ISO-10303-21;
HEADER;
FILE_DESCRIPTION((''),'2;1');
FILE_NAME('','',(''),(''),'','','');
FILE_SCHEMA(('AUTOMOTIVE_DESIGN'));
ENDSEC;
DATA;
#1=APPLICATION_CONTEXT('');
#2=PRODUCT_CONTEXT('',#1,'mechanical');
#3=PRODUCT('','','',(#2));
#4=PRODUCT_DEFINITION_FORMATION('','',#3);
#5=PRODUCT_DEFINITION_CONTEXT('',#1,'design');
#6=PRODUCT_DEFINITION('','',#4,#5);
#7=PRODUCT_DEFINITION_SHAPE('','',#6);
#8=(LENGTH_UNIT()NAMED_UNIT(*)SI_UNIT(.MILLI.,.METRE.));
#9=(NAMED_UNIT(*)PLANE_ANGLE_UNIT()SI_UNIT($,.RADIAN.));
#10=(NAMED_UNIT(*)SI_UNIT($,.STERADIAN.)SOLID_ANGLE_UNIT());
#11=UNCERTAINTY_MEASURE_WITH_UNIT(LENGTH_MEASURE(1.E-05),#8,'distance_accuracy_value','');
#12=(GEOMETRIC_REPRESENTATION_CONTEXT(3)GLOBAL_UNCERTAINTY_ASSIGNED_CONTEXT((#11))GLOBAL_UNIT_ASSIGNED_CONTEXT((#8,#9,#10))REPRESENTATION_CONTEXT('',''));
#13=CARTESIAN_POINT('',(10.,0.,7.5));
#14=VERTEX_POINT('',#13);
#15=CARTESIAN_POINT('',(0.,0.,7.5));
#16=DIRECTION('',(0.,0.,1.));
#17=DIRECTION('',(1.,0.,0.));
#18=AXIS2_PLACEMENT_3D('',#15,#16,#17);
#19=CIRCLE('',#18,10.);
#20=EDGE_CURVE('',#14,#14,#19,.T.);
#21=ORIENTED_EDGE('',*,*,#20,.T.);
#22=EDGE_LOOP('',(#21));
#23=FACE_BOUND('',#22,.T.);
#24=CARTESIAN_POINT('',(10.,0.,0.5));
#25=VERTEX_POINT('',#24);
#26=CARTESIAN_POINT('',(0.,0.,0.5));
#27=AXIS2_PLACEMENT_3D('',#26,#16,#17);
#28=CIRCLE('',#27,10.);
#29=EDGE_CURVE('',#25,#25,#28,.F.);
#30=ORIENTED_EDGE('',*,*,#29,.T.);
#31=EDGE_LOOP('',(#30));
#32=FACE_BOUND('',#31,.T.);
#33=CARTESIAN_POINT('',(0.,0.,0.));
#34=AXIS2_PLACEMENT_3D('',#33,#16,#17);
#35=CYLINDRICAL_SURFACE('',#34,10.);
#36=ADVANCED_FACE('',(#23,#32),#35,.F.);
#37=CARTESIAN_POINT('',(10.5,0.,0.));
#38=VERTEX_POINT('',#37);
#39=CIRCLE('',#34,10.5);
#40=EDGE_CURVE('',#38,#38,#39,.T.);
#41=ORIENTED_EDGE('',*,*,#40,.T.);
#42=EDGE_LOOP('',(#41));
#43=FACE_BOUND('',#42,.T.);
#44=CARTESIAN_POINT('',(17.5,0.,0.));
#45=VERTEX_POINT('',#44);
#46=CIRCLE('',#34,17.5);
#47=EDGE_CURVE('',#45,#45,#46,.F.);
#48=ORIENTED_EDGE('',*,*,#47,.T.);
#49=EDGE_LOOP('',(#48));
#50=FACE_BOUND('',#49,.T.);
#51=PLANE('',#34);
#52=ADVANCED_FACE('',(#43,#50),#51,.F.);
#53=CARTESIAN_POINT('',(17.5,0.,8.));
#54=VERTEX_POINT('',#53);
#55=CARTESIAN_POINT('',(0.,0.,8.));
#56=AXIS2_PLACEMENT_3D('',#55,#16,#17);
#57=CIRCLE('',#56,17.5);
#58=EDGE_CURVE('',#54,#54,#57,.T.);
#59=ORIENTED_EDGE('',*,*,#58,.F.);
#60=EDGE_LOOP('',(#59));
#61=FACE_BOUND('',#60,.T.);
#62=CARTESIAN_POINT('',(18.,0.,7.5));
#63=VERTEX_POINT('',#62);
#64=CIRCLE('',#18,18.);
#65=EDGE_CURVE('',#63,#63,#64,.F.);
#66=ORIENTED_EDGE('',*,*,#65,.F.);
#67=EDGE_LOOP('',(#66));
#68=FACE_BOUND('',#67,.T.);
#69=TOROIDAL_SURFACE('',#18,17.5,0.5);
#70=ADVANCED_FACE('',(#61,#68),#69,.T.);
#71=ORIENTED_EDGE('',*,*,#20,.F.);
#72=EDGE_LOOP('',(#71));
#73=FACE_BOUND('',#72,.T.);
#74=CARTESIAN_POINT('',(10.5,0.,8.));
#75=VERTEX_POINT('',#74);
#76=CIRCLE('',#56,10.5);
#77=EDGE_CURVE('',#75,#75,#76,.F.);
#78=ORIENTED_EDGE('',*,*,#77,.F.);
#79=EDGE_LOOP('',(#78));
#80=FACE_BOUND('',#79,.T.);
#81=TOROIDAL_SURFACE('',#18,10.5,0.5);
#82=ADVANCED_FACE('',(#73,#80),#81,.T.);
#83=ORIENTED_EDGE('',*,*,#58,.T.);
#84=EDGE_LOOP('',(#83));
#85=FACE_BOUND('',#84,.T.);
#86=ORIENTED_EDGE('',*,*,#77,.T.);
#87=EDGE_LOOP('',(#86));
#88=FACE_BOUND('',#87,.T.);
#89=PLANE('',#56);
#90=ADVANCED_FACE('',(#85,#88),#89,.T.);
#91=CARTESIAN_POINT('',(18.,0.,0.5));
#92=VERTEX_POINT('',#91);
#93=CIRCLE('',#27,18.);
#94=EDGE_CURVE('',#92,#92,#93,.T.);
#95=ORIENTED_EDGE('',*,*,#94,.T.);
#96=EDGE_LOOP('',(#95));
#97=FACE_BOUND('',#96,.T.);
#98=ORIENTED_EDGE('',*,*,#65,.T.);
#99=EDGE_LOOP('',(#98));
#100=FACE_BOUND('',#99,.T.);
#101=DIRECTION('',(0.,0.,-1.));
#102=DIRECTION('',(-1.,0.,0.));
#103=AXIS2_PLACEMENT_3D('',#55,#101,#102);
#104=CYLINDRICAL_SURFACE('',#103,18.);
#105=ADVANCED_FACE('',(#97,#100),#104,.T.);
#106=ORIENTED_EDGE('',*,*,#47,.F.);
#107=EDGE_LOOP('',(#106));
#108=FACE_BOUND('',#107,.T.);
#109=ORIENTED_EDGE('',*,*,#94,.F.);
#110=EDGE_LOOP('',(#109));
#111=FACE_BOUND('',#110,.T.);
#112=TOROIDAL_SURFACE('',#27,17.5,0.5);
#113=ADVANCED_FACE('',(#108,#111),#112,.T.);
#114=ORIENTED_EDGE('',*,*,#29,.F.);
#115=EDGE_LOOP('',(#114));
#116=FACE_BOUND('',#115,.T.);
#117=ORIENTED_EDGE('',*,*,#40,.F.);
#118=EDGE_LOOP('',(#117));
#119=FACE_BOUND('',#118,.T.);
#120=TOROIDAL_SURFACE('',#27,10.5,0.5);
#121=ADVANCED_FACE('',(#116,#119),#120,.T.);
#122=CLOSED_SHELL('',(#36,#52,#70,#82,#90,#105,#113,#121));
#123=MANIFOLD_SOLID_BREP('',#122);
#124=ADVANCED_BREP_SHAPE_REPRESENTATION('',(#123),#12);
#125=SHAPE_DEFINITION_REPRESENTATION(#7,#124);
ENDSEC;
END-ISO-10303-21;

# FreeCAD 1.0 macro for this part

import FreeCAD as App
import Part
import Sketcher

V = App.Vector


def edges_at(feature, points):
    """Names of the edges that pass closest to the given points."""
    edges = feature.Shape.Edges
    near = lambda p: min(range(len(edges)), key=lambda i: edges[i].distToShape(Part.Vertex(*p))[0])
    return sorted({f"Edge{near(p) + 1}" for p in points})

doc = App.newDocument("Part")
body = doc.addObject("PartDesign::Body", "Body")

# Sketch on XY plane
sketch1 = body.newObject("Sketcher::SketchObject", "Sketch")
sketch1.AttachmentSupport = (doc.getObject("XY_Plane"), [""])
sketch1.MapMode = "FlatFace"
sketch1.addGeometry(Part.Circle(V(0, 0, 0), V(0, 0, 1), 18), False)
sketch1.addConstraint([
    Sketcher.Constraint("Coincident", 0, 3, -1, 1),
    Sketcher.Constraint("Diameter", 0, 36.0),
])
pad1 = body.newObject("PartDesign::Pad", "Pad")
pad1.Profile = sketch1
pad1.Length = 8

# Sketch on XY plane
sketch2 = body.newObject("Sketcher::SketchObject", "Sketch001")
sketch2.AttachmentSupport = (doc.getObject("XY_Plane"), [""])
sketch2.MapMode = "FlatFace"
sketch2.AttachmentOffset = App.Placement(V(0, 0, 8), App.Rotation())
sketch2.addGeometry(Part.Circle(V(0, 0, 0), V(0, 0, 1), 10), False)
sketch2.addConstraint([
    Sketcher.Constraint("Coincident", 0, 3, -1, 1),
    Sketcher.Constraint("Diameter", 0, 20.0),
])
pocket1 = body.newObject("PartDesign::Pocket", "Pocket")
pocket1.Profile = sketch2
pocket1.Type = "ThroughAll"
doc.recompute()

fillet = body.newObject("PartDesign::Fillet", "Fillet")
fillet.Base = (pocket1, edges_at(pocket1, [
    (-18, 0, 0),
    (-18, 0, 8),
    (-10, 0, 0),
    (-10, 0, 8),
]))
fillet.Radius = 0.5

doc.recompute()
